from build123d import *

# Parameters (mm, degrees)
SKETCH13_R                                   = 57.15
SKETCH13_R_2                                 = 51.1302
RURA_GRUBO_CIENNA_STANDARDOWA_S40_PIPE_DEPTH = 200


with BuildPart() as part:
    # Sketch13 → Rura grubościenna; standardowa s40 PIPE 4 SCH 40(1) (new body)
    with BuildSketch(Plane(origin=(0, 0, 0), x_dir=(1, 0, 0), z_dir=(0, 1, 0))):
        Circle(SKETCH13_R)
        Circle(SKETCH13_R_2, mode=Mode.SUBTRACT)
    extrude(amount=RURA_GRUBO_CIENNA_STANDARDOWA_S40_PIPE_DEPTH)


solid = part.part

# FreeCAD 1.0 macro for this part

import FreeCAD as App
import Part
import Sketcher

V = App.Vector
Q = App.Units.Quantity

doc = App.newDocument("Part")
body = doc.addObject("PartDesign::Body", "Body")

# Sketch on XZ plane
sketch1 = body.newObject("Sketcher::SketchObject", "Sketch")
sketch1.AttachmentSupport = (doc.getObject("XZ_Plane"), [""])
sketch1.MapMode = "FlatFace"
sketch1.addGeometry(Part.Circle(V(0, 0, 0), V(0, 0, 1), 57.15), False)
sketch1.addGeometry(Part.Circle(V(0, 0, 0), V(0, 0, 1), 51.1302), False)
sketch1.addConstraint(Sketcher.Constraint("Coincident", 0, 3, -1, 1))
sketch1.addConstraint(Sketcher.Constraint("Coincident", 1, 3, -1, 1))
sketch1.addConstraint(Sketcher.Constraint("Diameter", 0, Q("4.5 in")))
sketch1.addConstraint(Sketcher.Constraint("Diameter", 1, Q("4.026 in")))
pad1 = body.newObject("PartDesign::Pad", "Pad")
pad1.Profile = sketch1
pad1.Length = 200
pad1.Reversed = True

doc.recompute()
